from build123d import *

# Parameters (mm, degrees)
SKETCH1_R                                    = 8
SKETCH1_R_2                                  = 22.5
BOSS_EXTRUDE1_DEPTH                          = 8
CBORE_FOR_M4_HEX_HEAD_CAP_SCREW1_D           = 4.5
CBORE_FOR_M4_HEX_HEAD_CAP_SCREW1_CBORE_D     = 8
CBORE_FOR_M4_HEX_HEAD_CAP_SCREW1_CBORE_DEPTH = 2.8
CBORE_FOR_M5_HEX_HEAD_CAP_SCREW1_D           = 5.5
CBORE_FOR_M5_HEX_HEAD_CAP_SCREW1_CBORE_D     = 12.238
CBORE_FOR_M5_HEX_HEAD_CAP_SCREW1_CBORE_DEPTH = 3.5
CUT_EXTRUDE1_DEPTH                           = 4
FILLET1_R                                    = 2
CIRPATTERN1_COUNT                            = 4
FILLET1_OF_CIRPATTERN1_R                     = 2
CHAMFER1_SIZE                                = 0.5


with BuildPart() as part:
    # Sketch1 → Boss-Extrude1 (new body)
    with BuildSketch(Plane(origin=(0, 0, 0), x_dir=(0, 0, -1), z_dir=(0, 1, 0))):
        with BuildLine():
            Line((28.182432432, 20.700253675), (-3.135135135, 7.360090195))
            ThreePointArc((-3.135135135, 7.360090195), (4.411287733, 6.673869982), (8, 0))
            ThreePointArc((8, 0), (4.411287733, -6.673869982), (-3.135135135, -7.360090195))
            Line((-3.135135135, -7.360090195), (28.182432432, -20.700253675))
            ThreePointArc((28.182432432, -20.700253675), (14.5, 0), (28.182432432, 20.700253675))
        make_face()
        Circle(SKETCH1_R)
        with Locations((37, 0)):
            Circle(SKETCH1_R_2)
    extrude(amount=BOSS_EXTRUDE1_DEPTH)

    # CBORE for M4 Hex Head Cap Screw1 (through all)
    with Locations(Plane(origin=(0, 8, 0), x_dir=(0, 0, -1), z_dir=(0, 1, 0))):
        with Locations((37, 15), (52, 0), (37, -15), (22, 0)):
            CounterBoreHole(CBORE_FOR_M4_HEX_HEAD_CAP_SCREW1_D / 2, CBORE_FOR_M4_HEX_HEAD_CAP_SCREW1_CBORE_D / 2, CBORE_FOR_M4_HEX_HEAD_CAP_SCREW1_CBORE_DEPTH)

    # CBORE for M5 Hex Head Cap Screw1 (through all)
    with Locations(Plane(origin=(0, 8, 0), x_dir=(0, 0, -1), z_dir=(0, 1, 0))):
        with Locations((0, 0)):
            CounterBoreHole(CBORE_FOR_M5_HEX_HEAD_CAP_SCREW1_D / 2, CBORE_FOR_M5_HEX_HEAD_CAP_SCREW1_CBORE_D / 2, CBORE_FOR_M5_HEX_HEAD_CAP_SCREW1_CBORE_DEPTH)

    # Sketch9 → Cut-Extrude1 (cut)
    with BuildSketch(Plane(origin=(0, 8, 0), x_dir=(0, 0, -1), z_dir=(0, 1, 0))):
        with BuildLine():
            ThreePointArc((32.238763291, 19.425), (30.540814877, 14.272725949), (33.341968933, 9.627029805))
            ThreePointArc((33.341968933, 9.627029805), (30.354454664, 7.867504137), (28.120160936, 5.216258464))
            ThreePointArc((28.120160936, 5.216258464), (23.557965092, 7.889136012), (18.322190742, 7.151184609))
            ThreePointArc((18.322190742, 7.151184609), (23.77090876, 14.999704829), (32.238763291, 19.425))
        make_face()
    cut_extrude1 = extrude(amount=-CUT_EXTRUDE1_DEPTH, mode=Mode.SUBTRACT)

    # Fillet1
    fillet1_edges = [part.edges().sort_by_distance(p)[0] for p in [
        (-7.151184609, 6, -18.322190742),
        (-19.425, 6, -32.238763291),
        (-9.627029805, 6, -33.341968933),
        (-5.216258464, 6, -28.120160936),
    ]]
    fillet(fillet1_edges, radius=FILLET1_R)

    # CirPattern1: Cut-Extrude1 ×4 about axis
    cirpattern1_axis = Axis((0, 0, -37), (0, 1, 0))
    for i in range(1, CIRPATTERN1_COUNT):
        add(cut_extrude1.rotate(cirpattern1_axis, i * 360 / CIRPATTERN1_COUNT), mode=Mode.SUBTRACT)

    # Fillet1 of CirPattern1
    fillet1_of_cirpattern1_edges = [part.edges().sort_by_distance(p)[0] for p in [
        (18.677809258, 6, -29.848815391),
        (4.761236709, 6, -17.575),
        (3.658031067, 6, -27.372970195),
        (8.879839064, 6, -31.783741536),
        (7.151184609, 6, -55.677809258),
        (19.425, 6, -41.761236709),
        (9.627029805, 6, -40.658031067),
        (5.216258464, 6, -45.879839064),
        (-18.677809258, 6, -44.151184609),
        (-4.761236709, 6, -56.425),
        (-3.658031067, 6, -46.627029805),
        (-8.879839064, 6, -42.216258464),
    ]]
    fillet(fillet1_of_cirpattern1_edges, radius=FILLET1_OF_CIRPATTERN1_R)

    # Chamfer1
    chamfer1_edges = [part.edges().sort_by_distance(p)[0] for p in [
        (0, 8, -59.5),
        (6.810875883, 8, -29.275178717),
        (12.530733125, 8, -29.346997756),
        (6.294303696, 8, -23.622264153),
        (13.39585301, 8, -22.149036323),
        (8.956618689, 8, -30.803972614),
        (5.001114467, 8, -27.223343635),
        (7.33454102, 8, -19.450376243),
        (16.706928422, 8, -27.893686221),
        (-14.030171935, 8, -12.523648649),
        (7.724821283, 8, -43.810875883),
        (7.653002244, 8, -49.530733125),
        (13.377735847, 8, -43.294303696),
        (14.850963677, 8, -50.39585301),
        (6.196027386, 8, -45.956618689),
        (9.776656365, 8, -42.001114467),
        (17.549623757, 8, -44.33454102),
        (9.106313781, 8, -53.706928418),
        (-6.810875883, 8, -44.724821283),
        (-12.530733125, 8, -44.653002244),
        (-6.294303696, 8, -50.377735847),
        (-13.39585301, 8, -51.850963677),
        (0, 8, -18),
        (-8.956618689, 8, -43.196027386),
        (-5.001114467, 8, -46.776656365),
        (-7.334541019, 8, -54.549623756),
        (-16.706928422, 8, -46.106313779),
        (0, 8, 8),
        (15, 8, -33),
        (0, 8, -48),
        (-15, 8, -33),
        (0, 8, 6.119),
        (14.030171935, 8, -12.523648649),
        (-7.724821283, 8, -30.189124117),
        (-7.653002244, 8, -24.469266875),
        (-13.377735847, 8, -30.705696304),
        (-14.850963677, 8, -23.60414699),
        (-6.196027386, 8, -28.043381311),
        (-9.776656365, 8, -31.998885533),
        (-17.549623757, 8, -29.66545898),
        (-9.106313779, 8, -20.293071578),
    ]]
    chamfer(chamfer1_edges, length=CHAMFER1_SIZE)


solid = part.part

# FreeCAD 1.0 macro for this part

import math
import FreeCAD as App
import Part
import Sketcher


def edges_at(feature, points):
    """Names of the edges that pass closest to the given points."""
    edges = feature.Shape.Edges
    near = lambda p: min(range(len(edges)), key=lambda i: edges[i].distToShape(Part.Vertex(*p))[0])
    return sorted({f"Edge{near(p) + 1}" for p in points})

doc = App.newDocument("Part")
params = doc.addObject("Spreadsheet::Sheet", "Params")
for row, (alias, value) in enumerate([
    ("sketch1_radius", "8 mm"),
    ("sketch1_radius2", "22.5 mm"),
    ("pad1_length", "8 mm"),
    ("sketch2_diameter", "4.5 mm"),
    ("hole_diameter", "4.5 mm"),
    ("hole_cbore_diameter", "8 mm"),
    ("hole_cbore_depth", "2.8 mm"),
    ("sketch3_diameter", "5.5 mm"),
    ("hole2_diameter", "5.5 mm"),
    ("hole2_cbore_diameter", "12.238 mm"),
    ("hole2_cbore_depth", "3.5 mm"),
    ("sketch4_radius", "20 mm"),
    ("sketch4_radius2", "6.5 mm"),
    ("pocket1_length", "4 mm"),
    ("fillet_radius", "2 mm"),
    ("fillet2_radius", "2 mm"),
    ("chamfer_size", "0.5 mm"),
], start=1):
    params.set(f"A{row}", alias)
    params.set(f"B{row}", "=" + value)
    params.setAlias(f"B{row}", alias)

body = doc.addObject("PartDesign::Body", "Body")

# Sketch on XZ plane
sketch1 = body.newObject("Sketcher::SketchObject", "Sketch")
sketch1.AttachmentSupport = (doc.getObject("XZ_Plane"), [""])
sketch1.MapMode = "FlatFace"
sketch1.addGeometry(Part.LineSegment(App.Vector(-21, -28, 0), App.Vector(-7, 3, 0)), False)
sketch1.addGeometry(Part.ArcOfCircle(Part.Circle(App.Vector(0, 0, 0), App.Vector(0, 0, 1), 8), math.radians(23), math.radians(157)), False)
sketch1.addGeometry(Part.LineSegment(App.Vector(7, 3, 0), App.Vector(21, -28, 0)), False)
sketch1.addGeometry(Part.ArcOfCircle(Part.Circle(App.Vector(0, -37, 0), App.Vector(0, 0, 1), 22), math.radians(157), math.radians(383)), False)
sketch1.addConstraint(Sketcher.Constraint("Tangent", 0, 2, 1, 2))
sketch1.addConstraint(Sketcher.Constraint("Tangent", 1, 1, 2, 1))
sketch1.addConstraint(Sketcher.Constraint("Tangent", 2, 2, 3, 2))
sketch1.addConstraint(Sketcher.Constraint("Tangent", 3, 1, 0, 1))
sketch1.addConstraint(Sketcher.Constraint("Coincident", 1, 3, -1, 1))
sketch1.addConstraint(Sketcher.Constraint("PointOnObject", 3, 3, -2))
sketch1.addConstraint(Sketcher.Constraint("Radius", 1, 8.0))
sketch1.addConstraint(Sketcher.Constraint("Radius", 3, 22.5))
sketch1.addConstraint(Sketcher.Constraint("DistanceY", 3, 3, -1, 1, 37.0))
sketch1.setExpression("Constraints[6]", "Params.sketch1_radius")
sketch1.setExpression("Constraints[7]", "Params.sketch1_radius2")
pad1 = body.newObject("PartDesign::Pad", "Pad")
pad1.Profile = sketch1
pad1.setExpression("Length", "Params.pad1_length")
pad1.Reversed = True

# Sketch on XZ plane
sketch2 = body.newObject("Sketcher::SketchObject", "Sketch001")
sketch2.AttachmentSupport = (doc.getObject("XZ_Plane"), [""])
sketch2.MapMode = "FlatFace"
sketch2.AttachmentOffset = App.Placement(App.Vector(0, 0, -8), App.Rotation())
sketch2.addGeometry(Part.Circle(App.Vector(-15, -37, 0), App.Vector(0, 0, 1), 2.2), False)
sketch2.addGeometry(Part.Circle(App.Vector(0, -52, 0), App.Vector(0, 0, 1), 2.2), False)
sketch2.addGeometry(Part.Circle(App.Vector(15, -37, 0), App.Vector(0, 0, 1), 2.2), False)
sketch2.addGeometry(Part.Circle(App.Vector(0, -22, 0), App.Vector(0, 0, 1), 2.2), False)
sketch2.addConstraint(Sketcher.Constraint("Equal", 0, 1))
sketch2.addConstraint(Sketcher.Constraint("Equal", 1, 2))
sketch2.addConstraint(Sketcher.Constraint("Equal", 2, 3))
sketch2.addConstraint(Sketcher.Constraint("Symmetric", 0, 3, 2, 3, -2))
sketch2.addConstraint(Sketcher.Constraint("PointOnObject", 1, 3, -2))
sketch2.addConstraint(Sketcher.Constraint("PointOnObject", 3, 3, -2))
sketch2.addConstraint(Sketcher.Constraint("Diameter", 0, 4.5))
sketch2.addConstraint(Sketcher.Constraint("DistanceX", 0, 3, -1, 1, 15.0))
sketch2.addConstraint(Sketcher.Constraint("DistanceY", 0, 3, -1, 1, 37.0))
sketch2.addConstraint(Sketcher.Constraint("DistanceY", 1, 3, -1, 1, 52.0))
sketch2.addConstraint(Sketcher.Constraint("DistanceY", 3, 3, -1, 1, 22.0))
sketch2.setExpression("Constraints[6]", "Params.sketch2_diameter")
doc.recompute()
hole = body.newObject("PartDesign::Hole", "Hole")
hole.Profile = sketch2
hole.ThreadType = "None"
hole.setExpression("Diameter", "Params.hole_diameter")
hole.DepthType = "ThroughAll"
hole.HoleCutType = "Counterbore"
hole.setExpression("HoleCutDiameter", "Params.hole_cbore_diameter")
hole.setExpression("HoleCutDepth", "Params.hole_cbore_depth")
hole.Reversed = True

# Sketch on XZ plane
sketch3 = body.newObject("Sketcher::SketchObject", "Sketch002")
sketch3.AttachmentSupport = (doc.getObject("XZ_Plane"), [""])
sketch3.MapMode = "FlatFace"
sketch3.AttachmentOffset = App.Placement(App.Vector(0, 0, -8), App.Rotation())
sketch3.addGeometry(Part.Circle(App.Vector(0, 0, 0), App.Vector(0, 0, 1), 2.8), False)
sketch3.addConstraint(Sketcher.Constraint("Coincident", 0, 3, -1, 1))
sketch3.addConstraint(Sketcher.Constraint("Diameter", 0, 5.5))
sketch3.setExpression("Constraints[1]", "Params.sketch3_diameter")
doc.recompute()
hole2 = body.newObject("PartDesign::Hole", "Hole001")
hole2.Profile = sketch3
hole2.ThreadType = "None"
hole2.setExpression("Diameter", "Params.hole2_diameter")
hole2.DepthType = "ThroughAll"
hole2.HoleCutType = "Counterbore"
hole2.setExpression("HoleCutDiameter", "Params.hole2_cbore_diameter")
hole2.setExpression("HoleCutDepth", "Params.hole2_cbore_depth")
hole2.Reversed = True

# Sketch on XZ plane
sketch4 = body.newObject("Sketcher::SketchObject", "Sketch003")
sketch4.AttachmentSupport = (doc.getObject("XZ_Plane"), [""])
sketch4.MapMode = "FlatFace"
sketch4.AttachmentOffset = App.Placement(App.Vector(0, 0, -8), App.Rotation())
sketch4.addGeometry(Part.ArcOfCircle(Part.Circle(App.Vector(-15, -37, 0), App.Vector(0, 0, 1), 7), math.radians(34), math.radians(133)), False)
sketch4.addGeometry(Part.ArcOfCircle(Part.Circle(App.Vector(0, -37, 0), App.Vector(0, 0, 1), 20), math.radians(111), math.radians(166)), False)
sketch4.addGeometry(Part.ArcOfCircle(Part.Circle(App.Vector(0, -22, 0), App.Vector(0, 0, 1), 8), math.radians(153), math.radians(230)), False)
sketch4.addGeometry(Part.ArcOfCircle(Part.Circle(App.Vector(0, -37, 0), App.Vector(0, 0, 1), 10), math.radians(120), math.radians(159)), False)
sketch4.addConstraint(Sketcher.Constraint("Coincident", 0, 2, 1, 2))
sketch4.addConstraint(Sketcher.Constraint("Coincident", 1, 1, 2, 1))
sketch4.addConstraint(Sketcher.Constraint("Coincident", 2, 2, 3, 1))
sketch4.addConstraint(Sketcher.Constraint("Coincident", 3, 2, 0, 1))
sketch4.addConstraint(Sketcher.Constraint("Coincident", 3, 3, 1, 3))
sketch4.addConstraint(Sketcher.Constraint("PointOnObject", 1, 3, -2))
sketch4.addConstraint(Sketcher.Constraint("PointOnObject", 2, 3, -2))
sketch4.addConstraint(Sketcher.Constraint("Horizontal", 0, 3, 1, 3))
sketch4.addConstraint(Sketcher.Constraint("Radius", 1, 20.0))
sketch4.addConstraint(Sketcher.Constraint("Radius", 0, 6.5))
sketch4.addConstraint(Sketcher.Constraint("DistanceX", 0, 3, -1, 1, 15.0))
sketch4.addConstraint(Sketcher.Constraint("DistanceY", 0, 3, -1, 1, 37.0))
sketch4.addConstraint(Sketcher.Constraint("DistanceY", 2, 3, -1, 1, 22.0))
sketch4.addConstraint(Sketcher.Constraint("Radius", 2, 8.0415))
sketch4.addConstraint(Sketcher.Constraint("Radius", 3, 10.298587))
sketch4.setExpression("Constraints[8]", "Params.sketch4_radius")
sketch4.setExpression("Constraints[9]", "Params.sketch4_radius2")
pocket1 = body.newObject("PartDesign::Pocket", "Pocket")
pocket1.Profile = sketch4
pocket1.setExpression("Length", "Params.pocket1_length")
pocket1.Reversed = True
doc.recompute()

fillet = body.newObject("PartDesign::Fillet", "Fillet")
fillet.Base = (pocket1, edges_at(pocket1, [
    (-7.151, 6, -18.322),
    (-19.425, 6, -32.239),
    (-9.627, 6, -33.342),
    (-5.216, 6, -28.12),
]))
fillet.setExpression("Radius", "Params.fillet_radius")
doc.recompute()

datumline = body.newObject("PartDesign::Line", "DatumLine")
datumline.Placement = App.Placement(App.Vector(0, 0, -37), App.Rotation(App.Vector(0, 0, 1), App.Vector(0, 1, 0)))
polarpattern = body.newObject("PartDesign::PolarPattern", "PolarPattern")
polarpattern.Originals = [pocket1]
polarpattern.Axis = (datumline, [""])
polarpattern.Angle = 360
polarpattern.Occurrences = 4
body.Tip = polarpattern
doc.recompute()

fillet2 = body.newObject("PartDesign::Fillet", "Fillet001")
fillet2.Base = (polarpattern, edges_at(polarpattern, [
    (18.678, 6, -29.849),
    (4.761, 6, -17.575),
    (3.658, 6, -27.373),
    (8.88, 6, -31.784),
    (7.151, 6, -55.678),
    (19.425, 6, -41.761),
    (9.627, 6, -40.658),
    (5.216, 6, -45.88),
    (-18.678, 6, -44.151),
    (-4.761, 6, -56.425),
    (-3.658, 6, -46.627),
    (-8.88, 6, -42.216),
]))
fillet2.setExpression("Radius", "Params.fillet2_radius")
doc.recompute()

chamfer = body.newObject("PartDesign::Chamfer", "Chamfer")
chamfer.Base = (fillet2, edges_at(fillet2, [
    (0, 8, -59.5),
    (6.811, 8, -29.275),
    (12.531, 8, -29.347),
    (6.294, 8, -23.622),
    (13.396, 8, -22.149),
    (8.957, 8, -30.804),
    (5.001, 8, -27.223),
    (7.335, 8, -19.45),
    (16.707, 8, -27.894),
    (-14.03, 8, -12.524),
    (7.725, 8, -43.811),
    (7.653, 8, -49.531),
    (13.378, 8, -43.294),
    (14.851, 8, -50.396),
    (6.196, 8, -45.957),
    (9.777, 8, -42.001),
    (17.55, 8, -44.335),
    (9.106, 8, -53.707),
    (-6.811, 8, -44.725),
    (-12.531, 8, -44.653),
    (-6.294, 8, -50.378),
    (-13.396, 8, -51.851),
    (0, 8, -18),
    (-8.957, 8, -43.196),
    (-5.001, 8, -46.777),
    (-7.335, 8, -54.55),
    (-16.707, 8, -46.106),
    (0, 8, 8),
    (15, 8, -33),
    (0, 8, -48),
    (-15, 8, -33),
    (0, 8, 6.119),
    (14.03, 8, -12.524),
    (-7.725, 8, -30.189),
    (-7.653, 8, -24.469),
    (-13.378, 8, -30.706),
    (-14.851, 8, -23.604),
    (-6.196, 8, -28.043),
    (-9.777, 8, -31.999),
    (-17.55, 8, -29.665),
    (-9.106, 8, -20.293),
]))
chamfer.setExpression("Size", "Params.chamfer_size")

doc.recompute()
